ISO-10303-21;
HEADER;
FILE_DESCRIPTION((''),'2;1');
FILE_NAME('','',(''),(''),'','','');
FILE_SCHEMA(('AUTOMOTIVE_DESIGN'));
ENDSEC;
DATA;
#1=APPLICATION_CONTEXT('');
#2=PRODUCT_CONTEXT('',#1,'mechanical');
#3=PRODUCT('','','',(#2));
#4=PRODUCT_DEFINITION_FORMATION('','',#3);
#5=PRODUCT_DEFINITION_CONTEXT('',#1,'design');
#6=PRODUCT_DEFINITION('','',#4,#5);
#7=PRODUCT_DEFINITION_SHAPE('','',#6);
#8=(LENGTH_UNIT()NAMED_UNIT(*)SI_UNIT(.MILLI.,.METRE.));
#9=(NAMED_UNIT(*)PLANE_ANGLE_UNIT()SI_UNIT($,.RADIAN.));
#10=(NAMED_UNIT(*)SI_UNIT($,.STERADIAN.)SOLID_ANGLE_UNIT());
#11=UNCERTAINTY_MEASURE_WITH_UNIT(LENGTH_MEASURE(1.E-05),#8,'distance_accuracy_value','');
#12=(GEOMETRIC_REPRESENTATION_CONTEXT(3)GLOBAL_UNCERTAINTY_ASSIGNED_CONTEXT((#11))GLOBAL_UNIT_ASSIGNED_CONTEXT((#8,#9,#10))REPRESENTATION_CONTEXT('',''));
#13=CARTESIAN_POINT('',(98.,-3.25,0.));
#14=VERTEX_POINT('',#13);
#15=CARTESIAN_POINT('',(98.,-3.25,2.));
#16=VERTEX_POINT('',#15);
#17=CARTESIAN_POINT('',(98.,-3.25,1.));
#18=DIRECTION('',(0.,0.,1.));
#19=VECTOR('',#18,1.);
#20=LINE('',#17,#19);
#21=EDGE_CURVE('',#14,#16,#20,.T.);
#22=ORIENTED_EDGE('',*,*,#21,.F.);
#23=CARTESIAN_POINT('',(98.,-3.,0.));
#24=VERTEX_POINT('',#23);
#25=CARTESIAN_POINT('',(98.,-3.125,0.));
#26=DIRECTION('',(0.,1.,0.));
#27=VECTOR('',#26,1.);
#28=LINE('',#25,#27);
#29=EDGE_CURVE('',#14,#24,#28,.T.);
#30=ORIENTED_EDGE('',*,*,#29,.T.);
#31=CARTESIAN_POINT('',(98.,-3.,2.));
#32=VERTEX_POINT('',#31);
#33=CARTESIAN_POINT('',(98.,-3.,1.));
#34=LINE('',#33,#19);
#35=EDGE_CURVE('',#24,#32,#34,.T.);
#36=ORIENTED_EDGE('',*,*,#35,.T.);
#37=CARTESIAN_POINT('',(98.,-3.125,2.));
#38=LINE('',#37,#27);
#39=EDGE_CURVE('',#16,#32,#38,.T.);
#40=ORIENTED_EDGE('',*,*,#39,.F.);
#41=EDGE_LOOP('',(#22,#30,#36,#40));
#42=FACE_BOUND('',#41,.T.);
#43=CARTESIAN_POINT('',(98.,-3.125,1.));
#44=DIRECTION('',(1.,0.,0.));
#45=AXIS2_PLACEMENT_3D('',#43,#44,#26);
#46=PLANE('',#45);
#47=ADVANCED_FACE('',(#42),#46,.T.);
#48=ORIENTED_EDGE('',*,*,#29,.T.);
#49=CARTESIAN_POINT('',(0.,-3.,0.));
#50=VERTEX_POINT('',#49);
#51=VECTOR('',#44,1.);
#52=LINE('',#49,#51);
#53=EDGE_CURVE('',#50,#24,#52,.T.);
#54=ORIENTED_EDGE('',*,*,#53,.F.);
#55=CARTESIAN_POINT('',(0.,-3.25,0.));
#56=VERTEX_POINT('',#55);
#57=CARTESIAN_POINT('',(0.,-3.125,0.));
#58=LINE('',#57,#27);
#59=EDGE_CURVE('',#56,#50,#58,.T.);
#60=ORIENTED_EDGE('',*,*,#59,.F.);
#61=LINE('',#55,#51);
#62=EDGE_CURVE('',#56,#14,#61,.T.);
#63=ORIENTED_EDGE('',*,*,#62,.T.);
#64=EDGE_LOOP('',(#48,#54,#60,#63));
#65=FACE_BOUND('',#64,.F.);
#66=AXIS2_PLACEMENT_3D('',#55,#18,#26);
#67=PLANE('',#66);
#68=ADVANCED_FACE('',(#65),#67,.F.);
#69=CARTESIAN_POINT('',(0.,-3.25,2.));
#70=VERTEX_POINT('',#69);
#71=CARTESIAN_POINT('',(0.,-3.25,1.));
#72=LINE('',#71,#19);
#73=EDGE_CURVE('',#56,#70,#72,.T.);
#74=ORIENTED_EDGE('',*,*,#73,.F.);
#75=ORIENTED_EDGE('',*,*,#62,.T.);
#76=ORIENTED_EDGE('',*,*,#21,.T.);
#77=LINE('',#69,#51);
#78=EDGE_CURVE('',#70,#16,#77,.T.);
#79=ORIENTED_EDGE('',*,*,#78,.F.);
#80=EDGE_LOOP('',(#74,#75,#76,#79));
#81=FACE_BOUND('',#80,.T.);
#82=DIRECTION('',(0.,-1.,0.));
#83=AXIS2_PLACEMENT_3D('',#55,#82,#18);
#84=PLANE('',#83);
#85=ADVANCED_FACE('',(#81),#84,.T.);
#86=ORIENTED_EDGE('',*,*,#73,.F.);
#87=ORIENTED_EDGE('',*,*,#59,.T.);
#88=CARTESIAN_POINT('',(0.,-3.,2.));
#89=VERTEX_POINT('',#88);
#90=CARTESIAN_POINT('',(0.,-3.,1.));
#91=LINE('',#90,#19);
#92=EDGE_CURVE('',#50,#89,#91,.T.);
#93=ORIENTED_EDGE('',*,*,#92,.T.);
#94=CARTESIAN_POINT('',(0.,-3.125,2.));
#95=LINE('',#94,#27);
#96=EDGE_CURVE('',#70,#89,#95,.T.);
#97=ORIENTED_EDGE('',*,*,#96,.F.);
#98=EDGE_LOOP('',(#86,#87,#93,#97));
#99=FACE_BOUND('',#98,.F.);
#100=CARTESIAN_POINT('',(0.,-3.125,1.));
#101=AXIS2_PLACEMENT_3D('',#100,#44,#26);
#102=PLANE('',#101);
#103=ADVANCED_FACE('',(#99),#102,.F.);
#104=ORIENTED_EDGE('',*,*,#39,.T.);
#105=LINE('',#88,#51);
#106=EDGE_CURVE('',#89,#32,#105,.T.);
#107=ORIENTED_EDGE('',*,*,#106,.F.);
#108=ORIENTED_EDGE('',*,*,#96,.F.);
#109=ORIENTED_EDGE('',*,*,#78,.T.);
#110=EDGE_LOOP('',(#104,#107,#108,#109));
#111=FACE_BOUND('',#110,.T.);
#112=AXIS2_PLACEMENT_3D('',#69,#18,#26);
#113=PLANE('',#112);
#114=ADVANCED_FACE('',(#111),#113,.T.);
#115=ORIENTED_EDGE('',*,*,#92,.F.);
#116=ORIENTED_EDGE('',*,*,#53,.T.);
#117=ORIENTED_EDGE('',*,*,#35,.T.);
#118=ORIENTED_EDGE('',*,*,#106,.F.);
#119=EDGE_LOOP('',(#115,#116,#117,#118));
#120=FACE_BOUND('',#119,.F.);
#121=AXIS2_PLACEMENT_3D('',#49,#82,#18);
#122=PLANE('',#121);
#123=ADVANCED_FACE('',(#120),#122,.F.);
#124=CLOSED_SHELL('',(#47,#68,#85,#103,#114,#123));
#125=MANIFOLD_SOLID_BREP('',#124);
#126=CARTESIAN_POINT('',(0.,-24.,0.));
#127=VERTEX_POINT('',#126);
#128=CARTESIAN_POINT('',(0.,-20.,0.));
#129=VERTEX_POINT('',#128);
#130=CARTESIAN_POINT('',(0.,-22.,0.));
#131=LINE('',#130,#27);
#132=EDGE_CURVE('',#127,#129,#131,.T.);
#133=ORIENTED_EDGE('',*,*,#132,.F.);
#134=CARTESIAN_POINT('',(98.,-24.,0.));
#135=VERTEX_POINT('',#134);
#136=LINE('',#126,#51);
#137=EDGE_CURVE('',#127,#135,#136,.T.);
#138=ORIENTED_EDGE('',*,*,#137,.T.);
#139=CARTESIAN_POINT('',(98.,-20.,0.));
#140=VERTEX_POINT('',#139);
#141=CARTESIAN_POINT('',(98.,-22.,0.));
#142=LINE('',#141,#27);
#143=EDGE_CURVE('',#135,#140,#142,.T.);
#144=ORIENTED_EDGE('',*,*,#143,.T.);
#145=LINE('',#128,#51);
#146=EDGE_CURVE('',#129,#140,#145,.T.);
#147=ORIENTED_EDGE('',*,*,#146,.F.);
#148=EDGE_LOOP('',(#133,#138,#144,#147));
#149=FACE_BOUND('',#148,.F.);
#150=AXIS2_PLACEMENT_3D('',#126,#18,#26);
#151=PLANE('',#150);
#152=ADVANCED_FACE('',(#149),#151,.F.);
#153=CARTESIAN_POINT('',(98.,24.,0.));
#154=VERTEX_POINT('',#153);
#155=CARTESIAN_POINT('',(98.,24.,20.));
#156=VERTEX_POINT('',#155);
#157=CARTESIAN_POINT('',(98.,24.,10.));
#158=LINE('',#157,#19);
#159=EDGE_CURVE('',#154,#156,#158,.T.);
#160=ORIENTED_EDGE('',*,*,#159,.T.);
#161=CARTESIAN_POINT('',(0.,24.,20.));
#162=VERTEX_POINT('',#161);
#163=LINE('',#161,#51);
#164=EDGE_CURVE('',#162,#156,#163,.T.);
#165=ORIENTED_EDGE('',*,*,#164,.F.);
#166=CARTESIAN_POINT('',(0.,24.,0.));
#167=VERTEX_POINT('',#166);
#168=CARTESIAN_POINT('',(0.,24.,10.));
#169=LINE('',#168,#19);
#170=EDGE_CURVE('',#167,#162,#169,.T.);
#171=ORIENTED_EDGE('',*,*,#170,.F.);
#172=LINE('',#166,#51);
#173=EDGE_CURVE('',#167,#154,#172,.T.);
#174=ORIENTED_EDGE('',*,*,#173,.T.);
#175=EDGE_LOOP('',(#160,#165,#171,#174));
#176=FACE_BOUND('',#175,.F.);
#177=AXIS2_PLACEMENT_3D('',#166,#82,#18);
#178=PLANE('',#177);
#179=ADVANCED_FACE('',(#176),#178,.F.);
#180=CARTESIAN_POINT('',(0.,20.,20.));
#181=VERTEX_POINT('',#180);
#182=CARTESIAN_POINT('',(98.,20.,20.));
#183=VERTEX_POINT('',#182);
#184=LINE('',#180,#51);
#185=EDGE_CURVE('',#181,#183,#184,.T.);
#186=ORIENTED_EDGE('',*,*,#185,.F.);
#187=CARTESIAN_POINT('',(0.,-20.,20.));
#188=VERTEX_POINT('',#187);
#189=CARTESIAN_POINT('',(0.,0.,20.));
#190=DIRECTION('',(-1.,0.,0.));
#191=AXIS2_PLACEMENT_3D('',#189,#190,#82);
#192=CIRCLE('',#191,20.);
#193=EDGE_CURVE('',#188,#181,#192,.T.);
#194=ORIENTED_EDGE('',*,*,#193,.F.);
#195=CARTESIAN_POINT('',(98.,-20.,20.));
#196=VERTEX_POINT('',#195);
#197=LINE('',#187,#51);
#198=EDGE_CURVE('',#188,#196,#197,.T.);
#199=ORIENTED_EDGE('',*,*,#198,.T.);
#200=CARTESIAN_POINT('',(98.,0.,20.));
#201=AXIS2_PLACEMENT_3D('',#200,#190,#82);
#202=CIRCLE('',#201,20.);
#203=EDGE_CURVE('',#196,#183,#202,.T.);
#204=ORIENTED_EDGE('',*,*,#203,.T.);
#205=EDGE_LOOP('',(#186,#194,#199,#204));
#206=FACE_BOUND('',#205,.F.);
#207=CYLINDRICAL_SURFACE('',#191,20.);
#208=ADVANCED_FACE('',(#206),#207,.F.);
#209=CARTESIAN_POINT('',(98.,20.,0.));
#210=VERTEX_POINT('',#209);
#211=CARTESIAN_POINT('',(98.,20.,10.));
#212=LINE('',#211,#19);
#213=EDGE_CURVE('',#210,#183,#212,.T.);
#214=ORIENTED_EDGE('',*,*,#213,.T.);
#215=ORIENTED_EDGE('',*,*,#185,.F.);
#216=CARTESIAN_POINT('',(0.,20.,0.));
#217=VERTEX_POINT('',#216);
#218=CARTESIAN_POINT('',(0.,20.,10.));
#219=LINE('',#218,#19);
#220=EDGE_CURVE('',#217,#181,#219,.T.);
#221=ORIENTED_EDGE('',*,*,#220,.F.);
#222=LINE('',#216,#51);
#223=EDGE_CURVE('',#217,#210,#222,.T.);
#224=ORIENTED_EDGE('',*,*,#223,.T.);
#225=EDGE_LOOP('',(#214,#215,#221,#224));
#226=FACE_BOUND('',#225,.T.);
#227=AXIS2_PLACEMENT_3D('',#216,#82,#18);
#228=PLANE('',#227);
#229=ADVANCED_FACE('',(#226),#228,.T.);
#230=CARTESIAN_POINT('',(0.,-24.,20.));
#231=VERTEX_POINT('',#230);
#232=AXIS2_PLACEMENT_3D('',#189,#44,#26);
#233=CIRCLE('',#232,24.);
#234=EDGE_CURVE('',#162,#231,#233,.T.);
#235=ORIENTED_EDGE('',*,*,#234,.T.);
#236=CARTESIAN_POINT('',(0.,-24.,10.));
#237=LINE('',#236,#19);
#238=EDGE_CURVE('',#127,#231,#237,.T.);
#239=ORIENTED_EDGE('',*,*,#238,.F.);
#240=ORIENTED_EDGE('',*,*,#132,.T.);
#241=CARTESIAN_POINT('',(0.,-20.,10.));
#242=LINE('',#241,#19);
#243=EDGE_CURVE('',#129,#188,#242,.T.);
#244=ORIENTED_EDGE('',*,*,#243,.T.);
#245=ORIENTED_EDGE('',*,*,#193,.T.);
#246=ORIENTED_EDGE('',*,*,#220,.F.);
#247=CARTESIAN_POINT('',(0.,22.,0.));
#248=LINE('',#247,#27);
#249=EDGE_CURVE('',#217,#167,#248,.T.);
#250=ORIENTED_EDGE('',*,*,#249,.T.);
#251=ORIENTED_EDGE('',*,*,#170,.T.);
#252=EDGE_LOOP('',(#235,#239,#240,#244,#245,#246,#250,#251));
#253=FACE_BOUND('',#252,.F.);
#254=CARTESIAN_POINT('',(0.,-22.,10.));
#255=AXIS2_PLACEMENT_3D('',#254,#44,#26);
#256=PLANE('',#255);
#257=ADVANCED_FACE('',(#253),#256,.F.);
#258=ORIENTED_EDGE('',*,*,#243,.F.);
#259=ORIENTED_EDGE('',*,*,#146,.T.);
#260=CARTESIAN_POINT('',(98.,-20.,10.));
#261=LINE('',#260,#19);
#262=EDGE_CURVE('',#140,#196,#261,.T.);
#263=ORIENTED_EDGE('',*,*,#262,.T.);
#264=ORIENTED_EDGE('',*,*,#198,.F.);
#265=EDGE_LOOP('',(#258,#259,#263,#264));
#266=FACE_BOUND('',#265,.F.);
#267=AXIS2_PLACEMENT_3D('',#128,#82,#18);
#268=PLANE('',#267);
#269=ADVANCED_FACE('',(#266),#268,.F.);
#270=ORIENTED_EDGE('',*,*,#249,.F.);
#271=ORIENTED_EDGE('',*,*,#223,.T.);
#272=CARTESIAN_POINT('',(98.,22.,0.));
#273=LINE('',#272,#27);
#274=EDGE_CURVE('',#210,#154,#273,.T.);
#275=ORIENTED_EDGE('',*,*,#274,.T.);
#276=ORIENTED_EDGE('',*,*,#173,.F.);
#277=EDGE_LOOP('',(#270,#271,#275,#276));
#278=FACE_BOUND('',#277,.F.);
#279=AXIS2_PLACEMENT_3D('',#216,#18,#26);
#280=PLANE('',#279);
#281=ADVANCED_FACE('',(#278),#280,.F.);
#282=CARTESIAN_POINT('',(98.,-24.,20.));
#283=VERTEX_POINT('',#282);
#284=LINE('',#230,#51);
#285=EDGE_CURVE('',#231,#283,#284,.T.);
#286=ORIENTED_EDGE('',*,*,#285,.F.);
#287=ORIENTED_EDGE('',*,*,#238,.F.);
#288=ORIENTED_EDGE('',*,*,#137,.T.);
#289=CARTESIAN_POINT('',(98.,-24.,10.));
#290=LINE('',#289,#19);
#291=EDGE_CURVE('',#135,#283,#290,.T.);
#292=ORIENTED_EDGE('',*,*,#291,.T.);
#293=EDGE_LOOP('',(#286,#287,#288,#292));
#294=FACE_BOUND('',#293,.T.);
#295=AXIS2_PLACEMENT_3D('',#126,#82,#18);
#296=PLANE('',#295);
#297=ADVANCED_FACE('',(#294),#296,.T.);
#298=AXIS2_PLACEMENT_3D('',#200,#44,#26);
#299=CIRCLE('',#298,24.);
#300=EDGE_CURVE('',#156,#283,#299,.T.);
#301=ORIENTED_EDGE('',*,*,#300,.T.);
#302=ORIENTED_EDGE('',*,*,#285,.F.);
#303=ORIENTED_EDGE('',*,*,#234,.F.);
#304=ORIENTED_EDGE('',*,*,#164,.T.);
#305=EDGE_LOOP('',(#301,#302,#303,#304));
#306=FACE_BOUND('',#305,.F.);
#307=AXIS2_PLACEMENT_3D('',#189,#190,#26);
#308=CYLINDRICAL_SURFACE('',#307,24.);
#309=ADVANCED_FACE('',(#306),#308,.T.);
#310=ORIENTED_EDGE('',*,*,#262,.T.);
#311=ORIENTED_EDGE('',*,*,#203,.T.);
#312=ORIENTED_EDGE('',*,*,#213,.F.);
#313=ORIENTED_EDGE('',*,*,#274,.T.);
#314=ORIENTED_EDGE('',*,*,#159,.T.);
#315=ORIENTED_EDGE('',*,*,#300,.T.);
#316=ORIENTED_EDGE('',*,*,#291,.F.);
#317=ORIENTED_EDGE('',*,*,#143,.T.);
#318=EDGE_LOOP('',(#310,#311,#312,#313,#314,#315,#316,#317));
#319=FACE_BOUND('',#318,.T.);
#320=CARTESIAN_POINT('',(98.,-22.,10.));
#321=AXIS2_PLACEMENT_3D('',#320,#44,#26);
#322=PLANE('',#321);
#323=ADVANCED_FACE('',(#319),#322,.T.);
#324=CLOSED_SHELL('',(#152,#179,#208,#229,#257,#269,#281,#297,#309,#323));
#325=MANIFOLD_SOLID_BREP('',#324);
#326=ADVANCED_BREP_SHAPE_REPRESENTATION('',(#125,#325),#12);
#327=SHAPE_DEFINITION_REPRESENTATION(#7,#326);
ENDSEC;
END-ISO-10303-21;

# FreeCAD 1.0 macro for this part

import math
import FreeCAD as App
import Part
import Sketcher
Q = App.Units.Quantity


def add_polygon(sketch, points):
    """Adds a closed chain of lines whose ends are joined by coincident constraints."""
    first, n = sketch.GeometryCount, len(points)
    for a, b in zip(points, points[1:] + points[:1]):
        sketch.addGeometry(Part.LineSegment(App.Vector(*a, 0), App.Vector(*b, 0)), False)
    for i in range(n):
        sketch.addConstraint(Sketcher.Constraint("Coincident", first + i, 2, first + (i + 1) % n, 1))

doc = App.newDocument("Part")
body = doc.addObject("PartDesign::Body", "Body")
body.AllowCompound = True

sketch1 = doc.addObject("Sketcher::SketchObject", "Sketch")
body.addObject(sketch1)
sketch1.AttachmentSupport = (doc.YZ_Plane, [""])
sketch1.MapMode = "FlatFace"
sketch1.addGeometry(Part.LineSegment(App.Vector(-24, 20, 0), App.Vector(-24, 0, 0)), False)
sketch1.addGeometry(Part.LineSegment(App.Vector(-24, 0, 0), App.Vector(-20, 0, 0)), False)
sketch1.addGeometry(Part.LineSegment(App.Vector(-20, 0, 0), App.Vector(-20, 20, 0)), False)
sketch1.addGeometry(Part.ArcOfCircle(Part.Circle(App.Vector(0, 20, 0), App.Vector(0, 0, 1), 20), math.radians(0), math.radians(180)), False)
sketch1.addGeometry(Part.LineSegment(App.Vector(20, 20, 0), App.Vector(20, 0, 0)), False)
sketch1.addGeometry(Part.LineSegment(App.Vector(20, 0, 0), App.Vector(24, 0, 0)), False)
sketch1.addGeometry(Part.LineSegment(App.Vector(24, 0, 0), App.Vector(24, 20, 0)), False)
sketch1.addGeometry(Part.ArcOfCircle(Part.Circle(App.Vector(0, 20, 0), App.Vector(0, 0, 1), 24), math.radians(0), math.radians(180)), False)
add_polygon(sketch1, [(-3.25, 2), (-3.25, 0), (-3, 0), (-3, 2)])
sketch1.addConstraint(Sketcher.Constraint("Coincident", 0, 2, 1, 1))
sketch1.addConstraint(Sketcher.Constraint("Coincident", 1, 2, 2, 1))
sketch1.addConstraint(Sketcher.Constraint("Tangent", 2, 2, 3, 2))
sketch1.addConstraint(Sketcher.Constraint("Tangent", 3, 1, 4, 1))
sketch1.addConstraint(Sketcher.Constraint("Coincident", 4, 2, 5, 1))
sketch1.addConstraint(Sketcher.Constraint("Coincident", 5, 2, 6, 1))
sketch1.addConstraint(Sketcher.Constraint("Tangent", 6, 2, 7, 1))
sketch1.addConstraint(Sketcher.Constraint("Tangent", 7, 2, 0, 1))
sketch1.addConstraint(Sketcher.Constraint("Vertical", 0))
sketch1.addConstraint(Sketcher.Constraint("Horizontal", 1))
sketch1.addConstraint(Sketcher.Constraint("Vertical", 2))
sketch1.addConstraint(Sketcher.Constraint("Vertical", 4))
sketch1.addConstraint(Sketcher.Constraint("Horizontal", 5))
sketch1.addConstraint(Sketcher.Constraint("Vertical", 6))
sketch1.addConstraint(Sketcher.Constraint("Vertical", 8))
sketch1.addConstraint(Sketcher.Constraint("Horizontal", 9))
sketch1.addConstraint(Sketcher.Constraint("Vertical", 10))
sketch1.addConstraint(Sketcher.Constraint("Horizontal", 11))
sketch1.addConstraint(Sketcher.Constraint("Coincident", 7, 3, 3, 3))
sketch1.addConstraint(Sketcher.Constraint("Symmetric", 1, 2, 4, 2, -1, 1))
sketch1.addConstraint(Sketcher.Constraint("PointOnObject", 0, 2, -1))
sketch1.addConstraint(Sketcher.Constraint("PointOnObject", 8, 2, -1))
sketch1.addConstraint(Sketcher.Constraint("Radius", 3, Q("20 mm")))
sketch1.addConstraint(Sketcher.Constraint("Radius", 7, Q("24 mm")))
sketch1.addConstraint(Sketcher.Constraint("DistanceY", 0, 2, 0, 1, Q("20 mm")))
sketch1.addConstraint(Sketcher.Constraint("DistanceY", 8, 2, 8, 1, Q("2 mm")))
sketch1.addConstraint(Sketcher.Constraint("DistanceX", 9, 2, -1, 1, Q("3 mm")))
sketch1.addConstraint(Sketcher.Constraint("DistanceX", 9, 1, 9, 2, Q("0.25 mm")))
pad1 = doc.addObject("PartDesign::Pad", "Pad")
body.addObject(pad1)
pad1.Profile = sketch1
pad1.Length = 98

doc.recompute()
